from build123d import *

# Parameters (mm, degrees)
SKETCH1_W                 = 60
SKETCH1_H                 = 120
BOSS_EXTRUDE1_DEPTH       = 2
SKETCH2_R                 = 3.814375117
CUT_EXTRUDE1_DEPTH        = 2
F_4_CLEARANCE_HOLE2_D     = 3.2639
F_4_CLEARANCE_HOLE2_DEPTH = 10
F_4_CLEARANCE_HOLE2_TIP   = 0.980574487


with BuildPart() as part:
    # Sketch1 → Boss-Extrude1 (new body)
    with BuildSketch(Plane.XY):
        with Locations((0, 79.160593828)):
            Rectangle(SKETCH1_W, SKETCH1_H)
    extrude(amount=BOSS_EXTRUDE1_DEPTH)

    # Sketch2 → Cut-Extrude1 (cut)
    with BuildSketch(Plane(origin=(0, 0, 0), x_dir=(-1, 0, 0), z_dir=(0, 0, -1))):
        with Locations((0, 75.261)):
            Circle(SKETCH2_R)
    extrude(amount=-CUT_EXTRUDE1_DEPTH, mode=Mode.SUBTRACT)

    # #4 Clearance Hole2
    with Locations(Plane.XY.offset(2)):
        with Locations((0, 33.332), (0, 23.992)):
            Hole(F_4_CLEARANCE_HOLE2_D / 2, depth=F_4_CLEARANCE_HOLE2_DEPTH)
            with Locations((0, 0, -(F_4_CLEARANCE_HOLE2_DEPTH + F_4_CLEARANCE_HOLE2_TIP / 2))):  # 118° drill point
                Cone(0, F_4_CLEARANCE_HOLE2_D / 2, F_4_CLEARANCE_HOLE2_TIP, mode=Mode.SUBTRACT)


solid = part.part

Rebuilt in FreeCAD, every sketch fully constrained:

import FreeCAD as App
import Part
import Sketcher

V = App.Vector


def add_polygon(sketch, points):
    """Adds a closed chain of lines whose ends are joined by coincident constraints."""
    first, n = sketch.GeometryCount, len(points)
    for a, b in zip(points, points[1:] + points[:1]):
        sketch.addGeometry(Part.LineSegment(App.Vector(*a, 0), App.Vector(*b, 0)), False)
    for i in range(n):
        sketch.addConstraint(Sketcher.Constraint("Coincident", first + i, 2, first + (i + 1) % n, 1))

doc = App.newDocument("Part")
params = doc.addObject("Spreadsheet::Sheet", "Params")
for row, (alias, value) in enumerate([
    ("sketch1_width", "60 mm"),
    ("sketch1_height", "120 mm"),
    ("pad1_length", "2 mm"),
    ("pocket1_length", "2 mm"),
    ("hole_diameter", "3.2639 mm"),
    ("hole_depth", "10 mm"),
], start=1):
    params.set(f"A{row}", alias)
    params.set(f"B{row}", "=" + value)
    params.setAlias(f"B{row}", alias)

body = doc.addObject("PartDesign::Body", "Body")

sketch1 = body.newObject("Sketcher::SketchObject", "Sketch")
sketch1.AttachmentSupport = (doc.getObject("XY_Plane"), [""])
sketch1.MapMode = "FlatFace"
add_polygon(sketch1, [(-30, 139.160594), (-30, 19.160594), (30, 19.160594), (30, 139.160594)])
sketch1.addConstraint(Sketcher.Constraint("Vertical", 0))
sketch1.addConstraint(Sketcher.Constraint("Horizontal", 1))
sketch1.addConstraint(Sketcher.Constraint("Vertical", 2))
sketch1.addConstraint(Sketcher.Constraint("Horizontal", 3))
sketch1.addConstraint(Sketcher.Constraint("DistanceX", 1, 1, 1, 2, 60.0))
sketch1.addConstraint(Sketcher.Constraint("DistanceY", 0, 2, 0, 1, 120.0))
sketch1.addConstraint(Sketcher.Constraint("DistanceX", 0, 2, -1, 1, 30.0))
sketch1.addConstraint(Sketcher.Constraint("DistanceY", -1, 1, 0, 2, 19.160594))
sketch1.setExpression("Constraints[8]", "Params.sketch1_width")
sketch1.setExpression("Constraints[9]", "Params.sketch1_height")
pad1 = body.newObject("PartDesign::Pad", "Pad")
pad1.Profile = sketch1
pad1.setExpression("Length", "Params.pad1_length")

sketch2 = body.newObject("Sketcher::SketchObject", "Sketch001")
sketch2.AttachmentSupport = (doc.getObject("XY_Plane"), [""])
sketch2.MapMode = "FlatFace"
sketch2.addGeometry(Part.Circle(V(0, 75.261, 0), V(0, 0, 1), 3.814375), False)
sketch2.addConstraint(Sketcher.Constraint("PointOnObject", 0, 3, -2))
sketch2.addConstraint(Sketcher.Constraint("Diameter", 0, 7.62875))
sketch2.addConstraint(Sketcher.Constraint("DistanceY", -1, 1, 0, 3, 75.261))
pocket1 = body.newObject("PartDesign::Pocket", "Pocket")
pocket1.Profile = sketch2
pocket1.setExpression("Length", "Params.pocket1_length")
pocket1.Reversed = True

sketch3 = body.newObject("Sketcher::SketchObject", "Sketch002")
sketch3.AttachmentSupport = (doc.getObject("XY_Plane"), [""])
sketch3.MapMode = "FlatFace"
sketch3.AttachmentOffset = App.Placement(V(0, 0, 2), App.Rotation())
sketch3.addGeometry(Part.Circle(V(0, 33.332, 0), V(0, 0, 1), 1.63195), False)
sketch3.addGeometry(Part.Circle(V(0, 23.992, 0), V(0, 0, 1), 1.63195), False)
sketch3.addConstraint(Sketcher.Constraint("Equal", 0, 1))
sketch3.addConstraint(Sketcher.Constraint("PointOnObject", 0, 3, -2))
sketch3.addConstraint(Sketcher.Constraint("PointOnObject", 1, 3, -2))
sketch3.addConstraint(Sketcher.Constraint("Diameter", 0, 3.2639))
sketch3.addConstraint(Sketcher.Constraint("DistanceY", 1, 3, 0, 3, 9.34))
sketch3.addConstraint(Sketcher.Constraint("DistanceY", -1, 1, 0, 3, 33.332))
doc.recompute()
hole = body.newObject("PartDesign::Hole", "Hole")
hole.Profile = sketch3
hole.ThreadType = "None"
hole.setExpression("Diameter", "Params.hole_diameter")
hole.DepthType = "Dimension"
hole.setExpression("Depth", "Params.hole_depth")
hole.DrillPoint = "Angled"
hole.DrillPointAngle = 118

doc.recompute()
